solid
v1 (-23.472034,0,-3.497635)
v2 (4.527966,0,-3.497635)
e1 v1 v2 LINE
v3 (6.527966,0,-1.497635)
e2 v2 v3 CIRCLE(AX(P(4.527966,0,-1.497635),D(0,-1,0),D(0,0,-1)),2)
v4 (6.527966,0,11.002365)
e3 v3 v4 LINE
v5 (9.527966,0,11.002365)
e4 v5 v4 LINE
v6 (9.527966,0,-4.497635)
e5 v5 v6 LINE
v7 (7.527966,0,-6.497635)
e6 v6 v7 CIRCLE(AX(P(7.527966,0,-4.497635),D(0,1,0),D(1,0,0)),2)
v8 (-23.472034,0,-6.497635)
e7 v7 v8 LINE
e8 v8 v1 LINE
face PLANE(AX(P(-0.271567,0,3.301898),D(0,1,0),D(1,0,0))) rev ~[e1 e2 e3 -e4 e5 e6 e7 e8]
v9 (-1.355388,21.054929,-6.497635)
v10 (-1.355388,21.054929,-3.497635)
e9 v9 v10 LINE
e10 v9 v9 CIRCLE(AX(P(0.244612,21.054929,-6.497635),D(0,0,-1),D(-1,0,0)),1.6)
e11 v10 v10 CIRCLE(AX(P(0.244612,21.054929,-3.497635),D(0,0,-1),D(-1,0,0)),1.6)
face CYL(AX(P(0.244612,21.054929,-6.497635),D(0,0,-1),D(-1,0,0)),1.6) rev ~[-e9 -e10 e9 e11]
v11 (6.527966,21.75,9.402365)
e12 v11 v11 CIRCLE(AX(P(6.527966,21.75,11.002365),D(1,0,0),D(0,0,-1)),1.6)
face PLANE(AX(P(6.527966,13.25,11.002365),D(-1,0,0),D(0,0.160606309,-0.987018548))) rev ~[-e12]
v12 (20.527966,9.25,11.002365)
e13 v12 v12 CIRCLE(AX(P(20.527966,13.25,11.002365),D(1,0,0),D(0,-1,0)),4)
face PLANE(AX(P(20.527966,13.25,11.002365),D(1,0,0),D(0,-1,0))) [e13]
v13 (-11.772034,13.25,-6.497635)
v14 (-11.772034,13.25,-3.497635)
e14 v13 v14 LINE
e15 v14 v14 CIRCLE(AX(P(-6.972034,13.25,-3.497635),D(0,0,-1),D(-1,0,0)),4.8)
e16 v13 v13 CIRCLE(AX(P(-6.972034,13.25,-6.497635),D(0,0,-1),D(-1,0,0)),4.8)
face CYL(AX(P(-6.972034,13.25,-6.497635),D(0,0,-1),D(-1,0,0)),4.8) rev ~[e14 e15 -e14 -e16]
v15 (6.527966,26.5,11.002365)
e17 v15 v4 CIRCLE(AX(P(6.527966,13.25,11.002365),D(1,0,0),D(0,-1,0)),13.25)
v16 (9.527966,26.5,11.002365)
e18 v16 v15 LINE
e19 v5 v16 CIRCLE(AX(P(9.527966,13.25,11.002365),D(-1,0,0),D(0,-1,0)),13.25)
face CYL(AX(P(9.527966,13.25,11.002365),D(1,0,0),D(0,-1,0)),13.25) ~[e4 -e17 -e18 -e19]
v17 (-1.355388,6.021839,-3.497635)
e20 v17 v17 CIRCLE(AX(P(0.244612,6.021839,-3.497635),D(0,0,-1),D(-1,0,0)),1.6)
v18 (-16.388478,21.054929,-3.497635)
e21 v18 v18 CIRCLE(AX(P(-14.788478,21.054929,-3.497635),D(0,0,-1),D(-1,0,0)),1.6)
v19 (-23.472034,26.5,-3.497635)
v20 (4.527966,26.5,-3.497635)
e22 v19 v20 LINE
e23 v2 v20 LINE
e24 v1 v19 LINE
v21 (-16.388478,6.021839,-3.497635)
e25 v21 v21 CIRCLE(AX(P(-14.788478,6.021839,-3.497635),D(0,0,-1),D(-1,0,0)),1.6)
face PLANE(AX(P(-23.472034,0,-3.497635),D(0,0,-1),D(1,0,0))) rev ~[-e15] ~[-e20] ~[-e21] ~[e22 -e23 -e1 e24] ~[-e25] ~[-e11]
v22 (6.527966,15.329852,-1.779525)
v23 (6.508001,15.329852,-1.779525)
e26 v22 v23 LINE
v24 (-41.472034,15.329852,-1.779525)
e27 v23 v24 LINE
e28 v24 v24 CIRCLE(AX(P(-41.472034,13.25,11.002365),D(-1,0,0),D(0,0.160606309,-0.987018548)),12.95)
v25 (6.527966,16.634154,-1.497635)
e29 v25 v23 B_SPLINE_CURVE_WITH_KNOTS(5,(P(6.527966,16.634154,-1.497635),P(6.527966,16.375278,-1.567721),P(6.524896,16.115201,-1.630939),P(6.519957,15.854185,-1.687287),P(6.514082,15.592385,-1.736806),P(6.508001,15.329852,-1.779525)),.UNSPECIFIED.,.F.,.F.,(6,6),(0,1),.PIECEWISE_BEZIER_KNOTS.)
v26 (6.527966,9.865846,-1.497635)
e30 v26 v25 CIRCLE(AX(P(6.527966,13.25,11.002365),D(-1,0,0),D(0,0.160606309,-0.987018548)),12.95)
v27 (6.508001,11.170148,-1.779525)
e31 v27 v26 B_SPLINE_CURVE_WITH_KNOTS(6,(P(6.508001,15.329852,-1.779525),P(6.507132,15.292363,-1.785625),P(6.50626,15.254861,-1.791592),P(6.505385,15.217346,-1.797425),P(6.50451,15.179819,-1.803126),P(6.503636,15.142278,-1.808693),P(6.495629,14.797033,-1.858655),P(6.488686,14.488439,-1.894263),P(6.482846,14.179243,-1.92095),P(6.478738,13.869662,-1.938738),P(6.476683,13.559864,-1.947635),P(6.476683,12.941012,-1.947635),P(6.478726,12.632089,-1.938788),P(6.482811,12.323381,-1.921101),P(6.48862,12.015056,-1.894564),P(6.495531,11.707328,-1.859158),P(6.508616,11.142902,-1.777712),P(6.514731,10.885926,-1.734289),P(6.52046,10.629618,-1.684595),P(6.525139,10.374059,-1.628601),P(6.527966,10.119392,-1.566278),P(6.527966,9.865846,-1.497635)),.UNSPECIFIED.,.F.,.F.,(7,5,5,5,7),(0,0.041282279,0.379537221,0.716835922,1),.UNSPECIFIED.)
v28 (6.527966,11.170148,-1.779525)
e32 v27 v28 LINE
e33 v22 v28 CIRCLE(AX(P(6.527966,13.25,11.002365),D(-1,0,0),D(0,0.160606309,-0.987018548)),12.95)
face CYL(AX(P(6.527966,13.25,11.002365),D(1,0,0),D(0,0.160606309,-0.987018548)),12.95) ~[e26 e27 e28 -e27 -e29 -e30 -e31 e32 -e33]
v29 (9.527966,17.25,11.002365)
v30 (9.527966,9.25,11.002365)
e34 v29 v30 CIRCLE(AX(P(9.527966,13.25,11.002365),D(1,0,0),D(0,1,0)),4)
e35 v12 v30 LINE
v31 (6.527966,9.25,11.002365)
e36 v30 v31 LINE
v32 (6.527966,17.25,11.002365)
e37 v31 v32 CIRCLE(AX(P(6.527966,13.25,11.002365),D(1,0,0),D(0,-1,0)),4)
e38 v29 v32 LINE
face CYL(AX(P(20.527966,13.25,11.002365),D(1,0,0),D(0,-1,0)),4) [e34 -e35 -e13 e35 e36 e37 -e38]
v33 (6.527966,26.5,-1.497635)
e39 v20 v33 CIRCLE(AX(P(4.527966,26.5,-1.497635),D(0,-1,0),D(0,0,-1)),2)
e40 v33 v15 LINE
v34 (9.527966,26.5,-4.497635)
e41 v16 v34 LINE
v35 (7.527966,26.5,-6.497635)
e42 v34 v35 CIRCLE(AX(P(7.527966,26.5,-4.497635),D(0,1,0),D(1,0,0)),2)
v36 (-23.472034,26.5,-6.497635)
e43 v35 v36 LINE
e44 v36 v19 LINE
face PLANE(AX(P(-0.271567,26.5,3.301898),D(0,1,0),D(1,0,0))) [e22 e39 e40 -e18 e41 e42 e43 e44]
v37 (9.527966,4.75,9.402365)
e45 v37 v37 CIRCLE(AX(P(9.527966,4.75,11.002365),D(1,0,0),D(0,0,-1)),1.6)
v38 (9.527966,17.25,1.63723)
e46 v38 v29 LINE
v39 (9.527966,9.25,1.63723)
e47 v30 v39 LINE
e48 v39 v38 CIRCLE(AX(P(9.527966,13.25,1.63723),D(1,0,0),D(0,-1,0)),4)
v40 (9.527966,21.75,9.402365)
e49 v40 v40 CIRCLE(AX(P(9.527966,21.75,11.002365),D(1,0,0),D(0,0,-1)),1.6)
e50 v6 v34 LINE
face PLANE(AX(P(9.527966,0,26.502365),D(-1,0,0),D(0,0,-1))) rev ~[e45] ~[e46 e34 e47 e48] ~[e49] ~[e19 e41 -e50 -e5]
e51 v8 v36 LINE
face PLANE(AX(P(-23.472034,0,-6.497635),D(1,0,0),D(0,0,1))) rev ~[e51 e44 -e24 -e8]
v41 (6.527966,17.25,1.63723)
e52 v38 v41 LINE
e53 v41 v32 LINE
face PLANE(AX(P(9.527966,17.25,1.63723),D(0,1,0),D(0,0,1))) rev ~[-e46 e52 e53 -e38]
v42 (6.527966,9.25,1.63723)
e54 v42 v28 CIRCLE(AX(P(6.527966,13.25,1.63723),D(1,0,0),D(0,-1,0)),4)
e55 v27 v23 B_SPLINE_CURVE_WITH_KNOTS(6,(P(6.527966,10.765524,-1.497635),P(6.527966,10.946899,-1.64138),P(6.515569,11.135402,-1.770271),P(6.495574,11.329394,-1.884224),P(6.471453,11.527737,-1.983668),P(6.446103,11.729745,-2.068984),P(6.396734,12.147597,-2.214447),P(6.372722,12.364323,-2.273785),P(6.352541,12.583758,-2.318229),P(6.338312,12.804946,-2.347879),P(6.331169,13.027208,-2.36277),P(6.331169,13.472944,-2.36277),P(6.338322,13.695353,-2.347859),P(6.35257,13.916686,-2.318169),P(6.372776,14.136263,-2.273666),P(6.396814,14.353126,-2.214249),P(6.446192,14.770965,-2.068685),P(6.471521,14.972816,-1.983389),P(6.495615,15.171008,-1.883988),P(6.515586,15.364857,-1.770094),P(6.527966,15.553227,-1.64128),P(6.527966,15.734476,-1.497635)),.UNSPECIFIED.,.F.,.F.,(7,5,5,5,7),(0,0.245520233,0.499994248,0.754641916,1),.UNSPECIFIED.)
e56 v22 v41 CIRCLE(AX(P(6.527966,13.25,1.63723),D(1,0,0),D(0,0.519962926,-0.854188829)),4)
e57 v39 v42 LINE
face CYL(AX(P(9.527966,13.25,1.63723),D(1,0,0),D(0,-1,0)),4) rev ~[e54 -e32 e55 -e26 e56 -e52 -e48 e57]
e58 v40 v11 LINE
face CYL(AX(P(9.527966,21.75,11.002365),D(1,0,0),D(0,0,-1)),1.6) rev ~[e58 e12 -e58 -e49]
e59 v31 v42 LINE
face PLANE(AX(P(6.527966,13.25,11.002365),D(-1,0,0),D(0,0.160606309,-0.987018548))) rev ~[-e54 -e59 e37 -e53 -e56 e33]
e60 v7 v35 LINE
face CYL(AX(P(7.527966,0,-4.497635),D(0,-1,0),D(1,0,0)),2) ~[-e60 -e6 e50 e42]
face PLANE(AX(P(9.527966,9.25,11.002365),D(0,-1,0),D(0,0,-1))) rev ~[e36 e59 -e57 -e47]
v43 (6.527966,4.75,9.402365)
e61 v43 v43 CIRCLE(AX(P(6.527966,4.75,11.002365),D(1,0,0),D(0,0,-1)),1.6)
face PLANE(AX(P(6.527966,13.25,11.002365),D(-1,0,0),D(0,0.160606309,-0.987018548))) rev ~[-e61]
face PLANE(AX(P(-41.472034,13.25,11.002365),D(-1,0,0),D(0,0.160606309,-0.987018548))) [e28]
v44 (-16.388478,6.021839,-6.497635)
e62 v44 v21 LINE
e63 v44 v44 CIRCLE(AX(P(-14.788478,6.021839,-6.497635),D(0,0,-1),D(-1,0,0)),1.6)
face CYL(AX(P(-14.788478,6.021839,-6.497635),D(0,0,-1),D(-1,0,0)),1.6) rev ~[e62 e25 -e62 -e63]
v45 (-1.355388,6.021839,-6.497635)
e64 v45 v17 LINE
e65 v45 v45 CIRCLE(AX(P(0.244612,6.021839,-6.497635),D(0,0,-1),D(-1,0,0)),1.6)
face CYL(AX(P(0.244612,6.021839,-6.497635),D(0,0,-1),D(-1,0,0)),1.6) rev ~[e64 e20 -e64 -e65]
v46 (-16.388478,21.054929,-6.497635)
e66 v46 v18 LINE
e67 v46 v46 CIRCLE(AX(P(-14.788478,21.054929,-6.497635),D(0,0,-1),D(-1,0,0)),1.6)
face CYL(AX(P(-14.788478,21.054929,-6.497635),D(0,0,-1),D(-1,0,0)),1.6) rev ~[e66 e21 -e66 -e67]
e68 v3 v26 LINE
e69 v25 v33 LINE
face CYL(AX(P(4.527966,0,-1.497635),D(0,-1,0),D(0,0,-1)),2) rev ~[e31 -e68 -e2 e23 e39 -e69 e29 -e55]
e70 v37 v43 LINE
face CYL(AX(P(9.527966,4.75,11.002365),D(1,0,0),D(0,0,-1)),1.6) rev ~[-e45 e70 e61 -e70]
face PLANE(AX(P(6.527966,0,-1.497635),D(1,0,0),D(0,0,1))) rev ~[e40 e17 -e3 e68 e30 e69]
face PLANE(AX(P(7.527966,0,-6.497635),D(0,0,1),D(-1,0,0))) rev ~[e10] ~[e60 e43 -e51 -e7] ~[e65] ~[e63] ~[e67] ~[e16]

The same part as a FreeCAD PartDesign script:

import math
import FreeCAD as App
import Part
import Sketcher
from FreeCAD import Vector

doc = App.newDocument("Part")
params = doc.addObject("Spreadsheet::Sheet", "Params")
for row, (alias, value) in enumerate([
    ("sketch1_radius", "2 mm"),
    ("sketch1_width", "28 mm"),
    ("sketch1_width2", "3 mm"),
    ("pad1_length", "26.5 mm"),
    ("sketch2_diameter", "9.6 mm"),
    ("sketch2_diameter2", "3.2 mm"),
    ("pocket1_length", "26 mm"),
    ("sketch3_radius", "4 mm"),
    ("sketch3_diameter", "3.2 mm"),
    ("sketch3_radius2", "13.25 mm"),
    ("sketch3_height", "15.5 mm"),
    ("pocket2_length", "26 mm"),
    ("sketch4_diameter", "25.9 mm"),
    ("pad2_length", "48 mm"),
    ("sketch5_diameter", "8 mm"),
    ("pad3_length", "14 mm"),
], start=1):
    params.set(f"A{row}", alias)
    params.set(f"B{row}", "=" + value)
    params.setAlias(f"B{row}", alias)

body = doc.addObject("PartDesign::Body", "Body")

sketch1 = body.newObject("Sketcher::SketchObject", "Sketch")
sketch1.AttachmentSupport = (doc.getObject("XZ_Plane"), [""])
sketch1.MapMode = "FlatFace"
sketch1.addGeometry([
    Part.LineSegment(Vector(-23.472034, -6.497635, 0), Vector(-23.472034, -3.497635, 0)),
    Part.LineSegment(Vector(-23.472034, -3.497635, 0), Vector(4.527966, -3.497635, 0)),
    Part.ArcOfCircle(Part.Circle(Vector(4.527966, -1.497635, 0), Vector(0, 0, 1), 2), math.radians(-90), math.radians(0)),
    Part.LineSegment(Vector(6.527966, -1.497635, 0), Vector(6.527966, 26.502365, 0)),
    Part.LineSegment(Vector(6.527966, 26.502365, 0), Vector(9.527966, 26.502365, 0)),
    Part.LineSegment(Vector(9.527966, 26.502365, 0), Vector(9.527966, -4.497635, 0)),
    Part.ArcOfCircle(Part.Circle(Vector(7.527966, -4.497635, 0), Vector(0, 0, 1), 2), math.radians(-90), math.radians(0)),
    Part.LineSegment(Vector(7.527966, -6.497635, 0), Vector(-23.472034, -6.497635, 0)),
], False)
sketch1.addConstraint([
    Sketcher.Constraint("Coincident", 0, 2, 1, 1),
    Sketcher.Constraint("Tangent", 1, 2, 2, 1),
    Sketcher.Constraint("Tangent", 2, 2, 3, 1),
    Sketcher.Constraint("Coincident", 3, 2, 4, 1),
    Sketcher.Constraint("Coincident", 4, 2, 5, 1),
    Sketcher.Constraint("Tangent", 5, 2, 6, 2),
    Sketcher.Constraint("Tangent", 6, 1, 7, 1),
    Sketcher.Constraint("Coincident", 7, 2, 0, 1),
    Sketcher.Constraint("Vertical", 0),
    Sketcher.Constraint("Horizontal", 1),
    Sketcher.Constraint("Vertical", 3),
    Sketcher.Constraint("Horizontal", 4),
    Sketcher.Constraint("Vertical", 5),
    Sketcher.Constraint("Horizontal", 7),
    Sketcher.Constraint("Equal", 2, 6),
    Sketcher.Constraint("Equal", 4, 0),
    Sketcher.Constraint("Equal", 1, 3),
    Sketcher.Constraint("Radius", 2, 2.0),
    Sketcher.Constraint("DistanceX", 1, 1, 1, 2, 28.0),
    Sketcher.Constraint("DistanceX", 4, 1, 4, 2, 3.0),
    Sketcher.Constraint("DistanceX", -1, 1, 2, 3, 4.527966),
    Sketcher.Constraint("DistanceY", 2, 3, -1, 1, 1.497635),
])
sketch1.setExpression("Constraints[17]", "Params.sketch1_radius")
sketch1.setExpression("Constraints[18]", "Params.sketch1_width")
sketch1.setExpression("Constraints[19]", "Params.sketch1_width2")
pad1 = body.newObject("PartDesign::Pad", "Pad")
pad1.Profile = sketch1
pad1.setExpression("Length", "Params.pad1_length")
pad1.Reversed = True

sketch2 = body.newObject("Sketcher::SketchObject", "Sketch001")
sketch2.AttachmentSupport = (doc.getObject("XY_Plane"), [""])
sketch2.MapMode = "FlatFace"
sketch2.AttachmentOffset = App.Placement(Vector(0, 0, -6.497635), App.Rotation())
sketch2.addGeometry([
    Part.Circle(Vector(-6.972034, 13.25, 0), Vector(0, 0, 1), 4.8),
    Part.Circle(Vector(0.244612, 21.054929, 0), Vector(0, 0, 1), 1.6),
    Part.Circle(Vector(-14.788478, 21.054929, 0), Vector(0, 0, 1), 1.6),
    Part.Circle(Vector(-14.788478, 6.021839, 0), Vector(0, 0, 1), 1.6),
    Part.Circle(Vector(0.244612, 6.021839, 0), Vector(0, 0, 1), 1.6),
], False)
sketch2.addConstraint([
    Sketcher.Constraint("Equal", 1, 2),
    Sketcher.Constraint("Equal", 2, 3),
    Sketcher.Constraint("Equal", 3, 4),
    Sketcher.Constraint("Horizontal", 1, 3, 2, 3),
    Sketcher.Constraint("Horizontal", 3, 3, 4, 3),
    Sketcher.Constraint("Vertical", 2, 3, 3, 3),
    Sketcher.Constraint("Vertical", 1, 3, 4, 3),
    Sketcher.Constraint("Diameter", 0, 9.6),
    Sketcher.Constraint("Diameter", 1, 3.2),
    Sketcher.Constraint("DistanceY", -1, 1, 0, 3, 13.25),
    Sketcher.Constraint("DistanceY", -1, 1, 1, 3, 21.054929),
    Sketcher.Constraint("DistanceX", 2, 3, -1, 1, 14.788478),
    Sketcher.Constraint("DistanceY", -1, 1, 3, 3, 6.021839),
    Sketcher.Constraint("DistanceX", 2, 3, 1, 3, 15.03309),
    Sketcher.Constraint("DistanceX", 0, 3, -1, 1, 6.972034),
])
sketch2.setExpression("Constraints[7]", "Params.sketch2_diameter")
sketch2.setExpression("Constraints[8]", "Params.sketch2_diameter2")
pocket1 = body.newObject("PartDesign::Pocket", "Pocket")
pocket1.Profile = sketch2
pocket1.setExpression("Length", "Params.pocket1_length")
pocket1.Reversed = True

sketch3 = body.newObject("Sketcher::SketchObject", "Sketch002")
sketch3.AttachmentSupport = (doc.getObject("YZ_Plane"), [""])
sketch3.MapMode = "FlatFace"
sketch3.AttachmentOffset = App.Placement(Vector(0, 0, 9.527966), App.Rotation())
sketch3.addGeometry([
    Part.LineSegment(Vector(26.5, 26.502365, 0), Vector(0, 26.502365, 0)),
    Part.LineSegment(Vector(0, 26.502365, 0), Vector(0, 11.002365, 0)),
    Part.ArcOfCircle(Part.Circle(Vector(13.25, 11.002365, 0), Vector(0, 0, 1), 13.25), math.radians(0), math.radians(180)),
    Part.LineSegment(Vector(26.5, 11.002365, 0), Vector(26.5, 26.502365, 0)),
    Part.LineSegment(Vector(9.25, 11.002365, 0), Vector(9.25, 1.63723, 0)),
    Part.ArcOfCircle(Part.Circle(Vector(13.25, 1.63723, 0), Vector(0, 0, 1), 4), math.radians(180), math.radians(360)),
    Part.LineSegment(Vector(17.25, 1.63723, 0), Vector(17.25, 11.002365, 0)),
    Part.ArcOfCircle(Part.Circle(Vector(13.25, 11.002365, 0), Vector(0, 0, 1), 4), math.radians(0), math.radians(180)),
    Part.Circle(Vector(4.75, 11.002365, 0), Vector(0, 0, 1), 1.6),
    Part.Circle(Vector(21.75, 11.002365, 0), Vector(0, 0, 1), 1.6),
], False)
sketch3.addConstraint([
    Sketcher.Constraint("Coincident", 0, 2, 1, 1),
    Sketcher.Constraint("Tangent", 1, 2, 2, 2),
    Sketcher.Constraint("Tangent", 2, 1, 3, 1),
    Sketcher.Constraint("Coincident", 3, 2, 0, 1),
    Sketcher.Constraint("Tangent", 4, 2, 5, 1),
    Sketcher.Constraint("Tangent", 5, 2, 6, 1),
    Sketcher.Constraint("Tangent", 6, 2, 7, 1),
    Sketcher.Constraint("Tangent", 7, 2, 4, 1),
    Sketcher.Constraint("Horizontal", 0),
    Sketcher.Constraint("Vertical", 1),
    Sketcher.Constraint("Vertical", 3),
    Sketcher.Constraint("Vertical", 4),
    Sketcher.Constraint("Vertical", 6),
    Sketcher.Constraint("Coincident", 7, 3, 2, 3),
    Sketcher.Constraint("Equal", 8, 9),
    Sketcher.Constraint("PointOnObject", 0, 2, -2),
    Sketcher.Constraint("Horizontal", 7, 3, 8, 3),
    Sketcher.Constraint("Horizontal", 8, 3, 9, 3),
    Sketcher.Constraint("Radius", 5, 4.0),
    Sketcher.Constraint("Diameter", 8, 3.2),
    Sketcher.Constraint("Radius", 2, 13.25),
    Sketcher.Constraint("DistanceY", 1, 2, 1, 1, 15.5),
    Sketcher.Constraint("DistanceX", 8, 3, 9, 3, 17.0),
    Sketcher.Constraint("DistanceX", 8, 3, 2, 3, 8.5),
    Sketcher.Constraint("DistanceY", 4, 2, 4, 1, 9.365135),
    Sketcher.Constraint("DistanceY", -1, 1, 5, 3, 1.63723),
])
sketch3.setExpression("Constraints[18]", "Params.sketch3_radius")
sketch3.setExpression("Constraints[19]", "Params.sketch3_diameter")
sketch3.setExpression("Constraints[20]", "Params.sketch3_radius2")
sketch3.setExpression("Constraints[21]", "Params.sketch3_height")
pocket2 = body.newObject("PartDesign::Pocket", "Pocket001")
pocket2.Profile = sketch3
pocket2.setExpression("Length", "Params.pocket2_length")

sketch4 = body.newObject("Sketcher::SketchObject", "Sketch003")
sketch4.AttachmentSupport = (doc.getObject("YZ_Plane"), [""])
sketch4.MapMode = "FlatFace"
sketch4.AttachmentOffset = App.Placement(Vector(0, 0, 6.527966), App.Rotation())
sketch4.addGeometry(Part.Circle(Vector(13.25, 11.002365, 0), Vector(0, 0, 1), 12.95), False)
sketch4.addConstraint([
    Sketcher.Constraint("Diameter", 0, 25.9),
    Sketcher.Constraint("DistanceX", -1, 1, 0, 3, 13.25),
    Sketcher.Constraint("DistanceY", -1, 1, 0, 3, 11.002365),
])
sketch4.setExpression("Constraints[0]", "Params.sketch4_diameter")
pad2 = body.newObject("PartDesign::Pad", "Pad001")
pad2.Profile = sketch4
pad2.setExpression("Length", "Params.pad2_length")
pad2.Reversed = True

sketch5 = body.newObject("Sketcher::SketchObject", "Sketch004")
sketch5.AttachmentSupport = (doc.getObject("YZ_Plane"), [""])
sketch5.MapMode = "FlatFace"
sketch5.AttachmentOffset = App.Placement(Vector(0, 0, 20.527966), App.Rotation())
sketch5.addGeometry(Part.Circle(Vector(13.25, 11.002365, 0), Vector(0, 0, 1), 4), False)
sketch5.addConstraint([
    Sketcher.Constraint("Diameter", 0, 8.0),
    Sketcher.Constraint("DistanceX", -1, 1, 0, 3, 13.25),
    Sketcher.Constraint("DistanceY", -1, 1, 0, 3, 11.002365),
])
sketch5.setExpression("Constraints[0]", "Params.sketch5_diameter")
pad3 = body.newObject("PartDesign::Pad", "Pad002")
pad3.Profile = sketch5
pad3.setExpression("Length", "Params.pad3_length")
pad3.Reversed = True

doc.recompute()
